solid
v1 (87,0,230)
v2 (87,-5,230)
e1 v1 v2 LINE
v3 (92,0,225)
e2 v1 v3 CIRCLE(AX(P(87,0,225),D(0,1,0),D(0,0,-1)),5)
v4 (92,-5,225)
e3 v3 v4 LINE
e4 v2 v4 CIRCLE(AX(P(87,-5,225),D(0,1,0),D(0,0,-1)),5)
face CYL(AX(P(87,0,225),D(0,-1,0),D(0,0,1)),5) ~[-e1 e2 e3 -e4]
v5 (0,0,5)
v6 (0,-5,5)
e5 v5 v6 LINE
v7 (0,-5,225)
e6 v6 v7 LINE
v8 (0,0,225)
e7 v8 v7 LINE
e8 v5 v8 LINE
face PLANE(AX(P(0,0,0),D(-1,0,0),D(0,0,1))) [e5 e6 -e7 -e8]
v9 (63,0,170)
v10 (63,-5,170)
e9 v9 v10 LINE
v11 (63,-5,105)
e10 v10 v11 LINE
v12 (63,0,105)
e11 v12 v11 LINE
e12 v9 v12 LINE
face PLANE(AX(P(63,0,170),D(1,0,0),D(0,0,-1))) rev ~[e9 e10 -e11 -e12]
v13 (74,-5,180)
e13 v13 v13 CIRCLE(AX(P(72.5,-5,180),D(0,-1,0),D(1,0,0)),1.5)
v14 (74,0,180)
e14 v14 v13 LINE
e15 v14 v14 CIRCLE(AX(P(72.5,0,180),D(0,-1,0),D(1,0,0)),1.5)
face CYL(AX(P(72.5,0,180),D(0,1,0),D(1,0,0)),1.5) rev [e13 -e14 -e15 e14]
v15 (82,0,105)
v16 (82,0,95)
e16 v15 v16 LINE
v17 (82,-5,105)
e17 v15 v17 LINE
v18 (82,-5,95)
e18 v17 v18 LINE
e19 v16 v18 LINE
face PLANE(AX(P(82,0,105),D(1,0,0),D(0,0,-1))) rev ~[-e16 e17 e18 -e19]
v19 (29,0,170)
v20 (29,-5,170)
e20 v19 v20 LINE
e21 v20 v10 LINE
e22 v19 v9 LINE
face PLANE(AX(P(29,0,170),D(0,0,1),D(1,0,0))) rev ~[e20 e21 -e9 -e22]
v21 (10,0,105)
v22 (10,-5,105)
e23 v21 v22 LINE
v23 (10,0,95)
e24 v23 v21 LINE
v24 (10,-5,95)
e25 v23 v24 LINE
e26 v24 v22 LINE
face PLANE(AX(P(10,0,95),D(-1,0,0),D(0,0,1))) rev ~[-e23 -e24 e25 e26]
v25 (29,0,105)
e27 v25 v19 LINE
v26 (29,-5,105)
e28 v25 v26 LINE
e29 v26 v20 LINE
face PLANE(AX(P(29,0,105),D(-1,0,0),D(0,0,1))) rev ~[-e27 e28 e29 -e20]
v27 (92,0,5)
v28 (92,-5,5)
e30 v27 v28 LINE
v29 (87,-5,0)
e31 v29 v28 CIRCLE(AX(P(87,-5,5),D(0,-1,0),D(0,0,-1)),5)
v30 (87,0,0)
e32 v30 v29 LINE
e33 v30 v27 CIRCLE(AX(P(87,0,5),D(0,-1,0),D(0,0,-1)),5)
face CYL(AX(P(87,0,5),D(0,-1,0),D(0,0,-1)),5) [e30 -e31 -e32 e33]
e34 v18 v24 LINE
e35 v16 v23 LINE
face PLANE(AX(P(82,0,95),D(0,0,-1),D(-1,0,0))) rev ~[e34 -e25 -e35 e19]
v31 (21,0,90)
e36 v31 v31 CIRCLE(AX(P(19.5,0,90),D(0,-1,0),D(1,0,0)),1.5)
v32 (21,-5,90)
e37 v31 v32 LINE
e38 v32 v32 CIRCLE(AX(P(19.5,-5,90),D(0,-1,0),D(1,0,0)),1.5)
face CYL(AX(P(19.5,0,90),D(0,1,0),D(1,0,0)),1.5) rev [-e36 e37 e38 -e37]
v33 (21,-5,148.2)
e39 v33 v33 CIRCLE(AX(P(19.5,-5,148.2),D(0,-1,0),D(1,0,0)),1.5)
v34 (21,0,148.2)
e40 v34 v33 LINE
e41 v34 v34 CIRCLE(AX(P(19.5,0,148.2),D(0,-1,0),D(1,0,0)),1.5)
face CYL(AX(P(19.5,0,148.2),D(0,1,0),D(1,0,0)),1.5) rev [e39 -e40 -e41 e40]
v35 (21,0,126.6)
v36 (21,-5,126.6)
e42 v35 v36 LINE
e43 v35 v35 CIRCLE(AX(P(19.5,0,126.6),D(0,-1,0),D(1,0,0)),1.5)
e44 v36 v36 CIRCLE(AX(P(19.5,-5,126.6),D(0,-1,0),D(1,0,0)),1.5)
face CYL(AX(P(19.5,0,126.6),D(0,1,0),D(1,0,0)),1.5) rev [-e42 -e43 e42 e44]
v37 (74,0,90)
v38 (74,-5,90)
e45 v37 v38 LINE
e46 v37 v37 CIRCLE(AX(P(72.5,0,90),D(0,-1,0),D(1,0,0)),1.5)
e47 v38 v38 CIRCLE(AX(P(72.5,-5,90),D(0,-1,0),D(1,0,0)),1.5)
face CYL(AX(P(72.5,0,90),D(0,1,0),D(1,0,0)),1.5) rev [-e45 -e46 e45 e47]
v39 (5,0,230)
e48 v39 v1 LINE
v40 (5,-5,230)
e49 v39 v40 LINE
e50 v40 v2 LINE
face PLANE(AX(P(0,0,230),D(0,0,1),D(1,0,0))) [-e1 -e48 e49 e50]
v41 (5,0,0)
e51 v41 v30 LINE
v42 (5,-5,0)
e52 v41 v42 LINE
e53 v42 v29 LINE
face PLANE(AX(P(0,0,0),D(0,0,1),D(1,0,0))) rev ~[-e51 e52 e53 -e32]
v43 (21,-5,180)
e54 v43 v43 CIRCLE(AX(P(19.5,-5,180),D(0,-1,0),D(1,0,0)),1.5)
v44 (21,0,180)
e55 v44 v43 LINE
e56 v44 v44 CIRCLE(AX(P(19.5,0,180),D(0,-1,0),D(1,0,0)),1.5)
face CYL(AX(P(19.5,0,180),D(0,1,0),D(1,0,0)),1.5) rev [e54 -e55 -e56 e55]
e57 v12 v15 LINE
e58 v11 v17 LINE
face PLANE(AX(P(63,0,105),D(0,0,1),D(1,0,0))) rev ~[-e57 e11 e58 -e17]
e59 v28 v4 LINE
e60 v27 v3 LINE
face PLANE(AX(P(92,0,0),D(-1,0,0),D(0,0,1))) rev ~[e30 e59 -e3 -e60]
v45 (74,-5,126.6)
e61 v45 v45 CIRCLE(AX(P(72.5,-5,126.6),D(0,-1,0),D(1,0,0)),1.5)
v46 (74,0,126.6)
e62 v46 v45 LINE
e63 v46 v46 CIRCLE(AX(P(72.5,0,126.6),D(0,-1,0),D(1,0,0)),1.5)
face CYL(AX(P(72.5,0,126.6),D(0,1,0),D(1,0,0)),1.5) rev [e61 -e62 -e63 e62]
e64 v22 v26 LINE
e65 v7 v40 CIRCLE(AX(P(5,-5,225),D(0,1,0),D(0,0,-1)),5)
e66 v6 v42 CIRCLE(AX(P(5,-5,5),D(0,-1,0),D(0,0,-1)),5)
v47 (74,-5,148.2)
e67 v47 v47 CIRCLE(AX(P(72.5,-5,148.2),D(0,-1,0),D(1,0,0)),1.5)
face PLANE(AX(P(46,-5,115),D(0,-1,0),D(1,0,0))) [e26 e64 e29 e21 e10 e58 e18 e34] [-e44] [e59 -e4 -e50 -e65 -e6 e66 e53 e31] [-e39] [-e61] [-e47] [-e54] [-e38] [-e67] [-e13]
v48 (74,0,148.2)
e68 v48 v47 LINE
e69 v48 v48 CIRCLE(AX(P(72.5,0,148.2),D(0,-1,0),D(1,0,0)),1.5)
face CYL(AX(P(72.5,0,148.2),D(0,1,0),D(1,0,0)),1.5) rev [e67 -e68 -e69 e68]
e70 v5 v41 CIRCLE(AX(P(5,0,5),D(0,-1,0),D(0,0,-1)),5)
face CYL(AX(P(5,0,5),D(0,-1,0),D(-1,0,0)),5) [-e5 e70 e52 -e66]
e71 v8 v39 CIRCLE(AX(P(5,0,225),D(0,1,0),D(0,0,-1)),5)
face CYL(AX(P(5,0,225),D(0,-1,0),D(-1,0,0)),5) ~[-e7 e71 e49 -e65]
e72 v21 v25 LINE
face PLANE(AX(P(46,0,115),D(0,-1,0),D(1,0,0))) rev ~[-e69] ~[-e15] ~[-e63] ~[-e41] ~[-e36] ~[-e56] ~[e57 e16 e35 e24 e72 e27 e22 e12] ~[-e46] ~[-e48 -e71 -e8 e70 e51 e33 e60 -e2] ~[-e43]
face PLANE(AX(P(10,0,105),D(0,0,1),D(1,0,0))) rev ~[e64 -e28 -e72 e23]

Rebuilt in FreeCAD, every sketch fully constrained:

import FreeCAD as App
import Part
import Sketcher
from FreeCAD import Vector
Q = App.Units.Quantity


def edges_at(feature, points):
    """Names of the edges that pass closest to the given points."""
    edges = feature.Shape.Edges
    near = lambda p: min(range(len(edges)), key=lambda i: edges[i].distToShape(Part.Vertex(*p))[0])
    return sorted({f"Edge{near(p) + 1}" for p in points})


def add_polygon(sketch, points):
    """Adds a closed chain of lines whose ends are joined by coincident constraints."""
    first, n = sketch.GeometryCount, len(points)
    for a, b in zip(points, points[1:] + points[:1]):
        sketch.addGeometry(Part.LineSegment(App.Vector(*a, 0), App.Vector(*b, 0)), False)
    for i in range(n):
        sketch.addConstraint(Sketcher.Constraint("Coincident", first + i, 2, first + (i + 1) % n, 1))

doc = App.newDocument("Part")
params = doc.addObject("Spreadsheet::Sheet", "Params")
for row, (alias, value) in enumerate([
    ("sketch1_diameter", "3 mm"),
    ("sketch1_width", "92 mm"),
    ("sketch1_width2", "72 mm"),
    ("sketch1_width3", "19 mm"),
    ("sketch1_height", "230 mm"),
    ("pad1_length", "5 mm"),
    ("fillet_radius", "5 mm"),
], start=1):
    params.set(f"A{row}", alias)
    params.set(f"B{row}", "=" + value)
    params.setAlias(f"B{row}", alias)

body = doc.addObject("PartDesign::Body", "Body")

sketch1 = body.newObject("Sketcher::SketchObject", "Sketch")
sketch1.AttachmentSupport = (doc.getObject("XZ_Plane"), [""])
sketch1.MapMode = "FlatFace"
add_polygon(sketch1, [(0, 230), (0, 0), (92, 0), (92, 230)])
sketch1.addGeometry(Part.Circle(Vector(19.5, 90, 0), Vector(0, 0, 1), 1.5), False)
sketch1.addGeometry(Part.Circle(Vector(19.5, 126.6, 0), Vector(0, 0, 1), 1.5), False)
sketch1.addGeometry(Part.Circle(Vector(72.5, 90, 0), Vector(0, 0, 1), 1.5), False)
add_polygon(sketch1, [(82, 105), (82, 95), (10, 95), (10, 105), (29, 105), (29, 170), (63, 170), (63, 105)])
sketch1.addGeometry(Part.Circle(Vector(72.5, 126.6, 0), Vector(0, 0, 1), 1.5), False)
sketch1.addGeometry(Part.Circle(Vector(19.5, 148.2, 0), Vector(0, 0, 1), 1.5), False)
sketch1.addGeometry(Part.Circle(Vector(19.5, 180, 0), Vector(0, 0, 1), 1.5), False)
sketch1.addGeometry(Part.Circle(Vector(72.5, 148.2, 0), Vector(0, 0, 1), 1.5), False)
sketch1.addGeometry(Part.Circle(Vector(72.5, 180, 0), Vector(0, 0, 1), 1.5), False)
sketch1.addConstraint([
    Sketcher.Constraint("Vertical", 0),
    Sketcher.Constraint("Horizontal", 1),
    Sketcher.Constraint("Vertical", 2),
    Sketcher.Constraint("Horizontal", 3),
    Sketcher.Constraint("Vertical", 7),
    Sketcher.Constraint("Horizontal", 8),
    Sketcher.Constraint("Vertical", 9),
    Sketcher.Constraint("Horizontal", 10),
    Sketcher.Constraint("Vertical", 11),
    Sketcher.Constraint("Horizontal", 12),
    Sketcher.Constraint("Vertical", 13),
    Sketcher.Constraint("Horizontal", 14),
    Sketcher.Constraint("Coincident", 0, 2, -1, 1),
    Sketcher.Constraint("Equal", 4, 5),
    Sketcher.Constraint("Equal", 5, 6),
    Sketcher.Constraint("Equal", 6, 15),
    Sketcher.Constraint("Equal", 15, 16),
    Sketcher.Constraint("Equal", 16, 17),
    Sketcher.Constraint("Equal", 17, 18),
    Sketcher.Constraint("Equal", 18, 19),
    Sketcher.Constraint("Horizontal", 4, 3, 6, 3),
    Sketcher.Constraint("Horizontal", 5, 3, 15, 3),
    Sketcher.Constraint("Horizontal", 16, 3, 18, 3),
    Sketcher.Constraint("Horizontal", 17, 3, 19, 3),
    Sketcher.Constraint("Horizontal", 10, 2, 13, 2),
    Sketcher.Constraint("Vertical", 4, 3, 5, 3),
    Sketcher.Constraint("Vertical", 6, 3, 15, 3),
    Sketcher.Constraint("Vertical", 5, 3, 16, 3),
    Sketcher.Constraint("Vertical", 16, 3, 17, 3),
    Sketcher.Constraint("Vertical", 15, 3, 18, 3),
    Sketcher.Constraint("Vertical", 18, 3, 19, 3),
    Sketcher.Constraint("Equal", 10, 14),
    Sketcher.Constraint("Diameter", 4, Q("3 mm")),
    Sketcher.Constraint("DistanceX", 1, 1, 1, 2, Q("92 mm")),
    Sketcher.Constraint("DistanceX", 8, 2, 8, 1, Q("72 mm")),
    Sketcher.Constraint("DistanceX", 10, 1, 10, 2, Q("19 mm")),
    Sketcher.Constraint("DistanceY", 0, 2, 0, 1, Q("230 mm")),
    Sketcher.Constraint("DistanceY", 7, 2, 7, 1, Q("10 mm")),
    Sketcher.Constraint("DistanceY", 11, 1, 11, 2, Q("65 mm")),
    Sketcher.Constraint("DistanceY", -1, 1, 4, 3, Q("90 mm")),
    Sketcher.Constraint("DistanceY", -1, 1, 17, 3, Q("180 mm")),
    Sketcher.Constraint("DistanceX", -1, 1, 7, 2, Q("82 mm")),
    Sketcher.Constraint("DistanceY", -1, 1, 7, 2, Q("95 mm")),
    Sketcher.Constraint("DistanceX", 4, 3, 6, 3, Q("53 mm")),
    Sketcher.Constraint("DistanceX", -1, 1, 4, 3, Q("19.5 mm")),
    Sketcher.Constraint("DistanceY", -1, 1, 5, 3, Q("126.6 mm")),
    Sketcher.Constraint("DistanceY", -1, 1, 16, 3, Q("148.2 mm")),
])
sketch1.setExpression("Constraints[44]", "Params.sketch1_diameter")
sketch1.setExpression("Constraints[45]", "Params.sketch1_width")
sketch1.setExpression("Constraints[46]", "Params.sketch1_width2")
sketch1.setExpression("Constraints[47]", "Params.sketch1_width3")
sketch1.setExpression("Constraints[48]", "Params.sketch1_height")
pad1 = body.newObject("PartDesign::Pad", "Pad")
pad1.Profile = sketch1
pad1.setExpression("Length", "Params.pad1_length")
doc.recompute()

fillet = body.newObject("PartDesign::Fillet", "Fillet")
fillet.Base = (pad1, edges_at(pad1, [
    (92, -2.5, 230),
    (0, -2.5, 230),
    (0, -2.5, 0),
    (92, -2.5, 0),
]))
fillet.setExpression("Radius", "Params.fillet_radius")

doc.recompute()
